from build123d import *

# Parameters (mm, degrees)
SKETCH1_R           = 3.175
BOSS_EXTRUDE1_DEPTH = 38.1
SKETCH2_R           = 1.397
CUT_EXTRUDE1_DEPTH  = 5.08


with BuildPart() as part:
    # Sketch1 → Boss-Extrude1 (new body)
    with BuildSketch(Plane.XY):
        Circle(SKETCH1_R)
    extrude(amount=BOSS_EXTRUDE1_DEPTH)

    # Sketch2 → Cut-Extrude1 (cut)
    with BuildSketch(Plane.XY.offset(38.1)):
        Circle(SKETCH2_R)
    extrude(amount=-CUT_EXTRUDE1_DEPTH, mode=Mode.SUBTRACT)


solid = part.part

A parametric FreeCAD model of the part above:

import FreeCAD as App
import Part
import Sketcher
from FreeCAD import Vector
Q = App.Units.Quantity

doc = App.newDocument("Part")
params = doc.addObject("Spreadsheet::Sheet", "Params")
for row, (alias, value) in enumerate([
    ("sketch1_diameter", "0.25 in"),
    ("pad1_length", "1.5 in"),
    ("sketch2_diameter", "0.11 in"),
    ("pocket1_length", "0.2 in"),
], start=1):
    params.set(f"A{row}", alias)
    params.set(f"B{row}", "=" + value)
    params.setAlias(f"B{row}", alias)

body = doc.addObject("PartDesign::Body", "Body")

# Sketch on XY plane
sketch1 = body.newObject("Sketcher::SketchObject", "Sketch")
sketch1.AttachmentSupport = (doc.getObject("XY_Plane"), [""])
sketch1.MapMode = "FlatFace"
sketch1.addGeometry(Part.Circle(Vector(0, 0, 0), Vector(0, 0, 1), 3.175), False)
sketch1.addConstraint([
    Sketcher.Constraint("Coincident", 0, 3, -1, 1),
    Sketcher.Constraint("Diameter", 0, Q("0.25 in")),
])
sketch1.setExpression("Constraints[1]", "Params.sketch1_diameter")
pad1 = body.newObject("PartDesign::Pad", "Pad")
pad1.Profile = sketch1
pad1.setExpression("Length", "Params.pad1_length")

# Sketch on XY plane
sketch2 = body.newObject("Sketcher::SketchObject", "Sketch001")
sketch2.AttachmentSupport = (doc.getObject("XY_Plane"), [""])
sketch2.MapMode = "FlatFace"
sketch2.AttachmentOffset = App.Placement(Vector(0, 0, 1.5 * 25.4), App.Rotation())
sketch2.addGeometry(Part.Circle(Vector(0, 0, 0), Vector(0, 0, 1), 1.397), False)
sketch2.addConstraint([
    Sketcher.Constraint("Coincident", 0, 3, -1, 1),
    Sketcher.Constraint("Diameter", 0, Q("0.11 in")),
])
sketch2.setExpression("Constraints[1]", "Params.sketch2_diameter")
pocket1 = body.newObject("PartDesign::Pocket", "Pocket")
pocket1.Profile = sketch2
pocket1.setExpression("Length", "Params.pocket1_length")

doc.recompute()
